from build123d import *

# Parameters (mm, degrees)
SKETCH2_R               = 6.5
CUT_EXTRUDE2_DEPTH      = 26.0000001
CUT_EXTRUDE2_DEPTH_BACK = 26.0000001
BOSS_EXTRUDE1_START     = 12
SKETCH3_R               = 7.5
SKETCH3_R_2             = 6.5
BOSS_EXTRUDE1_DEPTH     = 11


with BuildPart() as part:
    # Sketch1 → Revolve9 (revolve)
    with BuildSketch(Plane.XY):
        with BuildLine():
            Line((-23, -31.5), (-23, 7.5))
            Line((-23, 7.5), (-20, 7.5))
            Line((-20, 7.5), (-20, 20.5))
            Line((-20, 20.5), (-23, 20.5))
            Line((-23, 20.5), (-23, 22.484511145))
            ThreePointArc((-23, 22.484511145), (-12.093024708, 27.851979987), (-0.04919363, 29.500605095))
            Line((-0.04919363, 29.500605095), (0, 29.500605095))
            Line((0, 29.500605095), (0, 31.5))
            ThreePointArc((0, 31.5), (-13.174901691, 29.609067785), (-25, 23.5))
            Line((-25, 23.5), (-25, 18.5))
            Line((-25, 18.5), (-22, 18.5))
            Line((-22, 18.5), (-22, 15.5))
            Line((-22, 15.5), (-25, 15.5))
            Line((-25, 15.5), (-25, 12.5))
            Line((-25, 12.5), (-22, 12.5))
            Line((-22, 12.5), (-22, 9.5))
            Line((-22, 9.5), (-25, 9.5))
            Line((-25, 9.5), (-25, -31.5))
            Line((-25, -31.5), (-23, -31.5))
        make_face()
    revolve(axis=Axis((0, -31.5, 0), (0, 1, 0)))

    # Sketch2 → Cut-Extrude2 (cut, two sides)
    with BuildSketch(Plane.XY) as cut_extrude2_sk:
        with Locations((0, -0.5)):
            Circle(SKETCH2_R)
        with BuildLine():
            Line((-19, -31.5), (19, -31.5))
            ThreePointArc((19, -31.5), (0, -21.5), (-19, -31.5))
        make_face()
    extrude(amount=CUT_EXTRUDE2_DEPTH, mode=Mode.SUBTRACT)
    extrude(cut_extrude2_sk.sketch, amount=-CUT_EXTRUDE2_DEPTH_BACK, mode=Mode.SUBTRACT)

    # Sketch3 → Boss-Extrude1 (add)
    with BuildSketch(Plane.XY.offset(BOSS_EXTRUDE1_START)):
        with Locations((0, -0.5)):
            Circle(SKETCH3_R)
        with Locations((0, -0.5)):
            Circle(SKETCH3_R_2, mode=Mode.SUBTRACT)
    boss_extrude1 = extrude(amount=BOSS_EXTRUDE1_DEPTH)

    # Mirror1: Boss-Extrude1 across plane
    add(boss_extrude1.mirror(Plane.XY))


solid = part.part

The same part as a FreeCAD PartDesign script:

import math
import FreeCAD as App
import Part
import Sketcher

V = App.Vector

doc = App.newDocument("Part")
body = doc.addObject("PartDesign::Body", "Body")

# Sketch on XY plane
sketch1 = body.newObject("Sketcher::SketchObject", "Sketch")
sketch1.AttachmentSupport = (doc.getObject("XY_Plane"), [""])
sketch1.MapMode = "FlatFace"
sketch1.addGeometry(Part.LineSegment(V(-23, -31.5, 0), V(-23, 7.5, 0)), False)
sketch1.addGeometry(Part.LineSegment(V(-23, 7.5, 0), V(-20, 7.5, 0)), False)
sketch1.addGeometry(Part.LineSegment(V(-20, 7.5, 0), V(-20, 20.5, 0)), False)
sketch1.addGeometry(Part.LineSegment(V(-20, 20.5, 0), V(-23, 20.5, 0)), False)
sketch1.addGeometry(Part.LineSegment(V(-23, 20.5, 0), V(-23, 22.485, 0)), False)
sketch1.addGeometry(Part.ArcOfCircle(Part.Circle(V(-0.984, -8.488, 0), V(0, 0, 1), 38), math.radians(89), math.radians(125)), False)
sketch1.addGeometry(Part.LineSegment(V(-0.049, 29.501, 0), V(0, 29.501, 0)), False)
sketch1.addGeometry(Part.LineSegment(V(0, 29.501, 0), V(0, 31.5, 0)), False)
sketch1.addGeometry(Part.ArcOfCircle(Part.Circle(V(-0.984, -8.488, 0), V(0, 0, 1), 40), math.radians(89), math.radians(127)), False)
sketch1.addGeometry(Part.LineSegment(V(-25, 23.5, 0), V(-25, 18.5, 0)), False)
sketch1.addGeometry(Part.LineSegment(V(-25, 18.5, 0), V(-22, 18.5, 0)), False)
sketch1.addGeometry(Part.LineSegment(V(-22, 18.5, 0), V(-22, 15.5, 0)), False)
sketch1.addGeometry(Part.LineSegment(V(-22, 15.5, 0), V(-25, 15.5, 0)), False)
sketch1.addGeometry(Part.LineSegment(V(-25, 15.5, 0), V(-25, 12.5, 0)), False)
sketch1.addGeometry(Part.LineSegment(V(-25, 12.5, 0), V(-22, 12.5, 0)), False)
sketch1.addGeometry(Part.LineSegment(V(-22, 12.5, 0), V(-22, 9.5, 0)), False)
sketch1.addGeometry(Part.LineSegment(V(-22, 9.5, 0), V(-25, 9.5, 0)), False)
sketch1.addGeometry(Part.LineSegment(V(-25, 9.5, 0), V(-25, -31.5, 0)), False)
sketch1.addGeometry(Part.LineSegment(V(-25, -31.5, 0), V(-23, -31.5, 0)), False)
sketch1.addConstraint(Sketcher.Constraint("Coincident", 0, 2, 1, 1))
sketch1.addConstraint(Sketcher.Constraint("Coincident", 1, 2, 2, 1))
sketch1.addConstraint(Sketcher.Constraint("Coincident", 2, 2, 3, 1))
sketch1.addConstraint(Sketcher.Constraint("Coincident", 3, 2, 4, 1))
sketch1.addConstraint(Sketcher.Constraint("Coincident", 4, 2, 5, 2))
sketch1.addConstraint(Sketcher.Constraint("Coincident", 5, 1, 6, 1))
sketch1.addConstraint(Sketcher.Constraint("Coincident", 6, 2, 7, 1))
sketch1.addConstraint(Sketcher.Constraint("Coincident", 7, 2, 8, 1))
sketch1.addConstraint(Sketcher.Constraint("Coincident", 8, 2, 9, 1))
sketch1.addConstraint(Sketcher.Constraint("Coincident", 9, 2, 10, 1))
sketch1.addConstraint(Sketcher.Constraint("Coincident", 10, 2, 11, 1))
sketch1.addConstraint(Sketcher.Constraint("Coincident", 11, 2, 12, 1))
sketch1.addConstraint(Sketcher.Constraint("Coincident", 12, 2, 13, 1))
sketch1.addConstraint(Sketcher.Constraint("Coincident", 13, 2, 14, 1))
sketch1.addConstraint(Sketcher.Constraint("Coincident", 14, 2, 15, 1))
sketch1.addConstraint(Sketcher.Constraint("Coincident", 15, 2, 16, 1))
sketch1.addConstraint(Sketcher.Constraint("Coincident", 16, 2, 17, 1))
sketch1.addConstraint(Sketcher.Constraint("Coincident", 17, 2, 18, 1))
sketch1.addConstraint(Sketcher.Constraint("Coincident", 18, 2, 0, 1))
sketch1.addConstraint(Sketcher.Constraint("Vertical", 0))
sketch1.addConstraint(Sketcher.Constraint("Horizontal", 1))
sketch1.addConstraint(Sketcher.Constraint("Vertical", 2))
sketch1.addConstraint(Sketcher.Constraint("Horizontal", 3))
sketch1.addConstraint(Sketcher.Constraint("Vertical", 4))
sketch1.addConstraint(Sketcher.Constraint("Horizontal", 6))
sketch1.addConstraint(Sketcher.Constraint("Vertical", 7))
sketch1.addConstraint(Sketcher.Constraint("Vertical", 9))
sketch1.addConstraint(Sketcher.Constraint("Horizontal", 10))
sketch1.addConstraint(Sketcher.Constraint("Vertical", 11))
sketch1.addConstraint(Sketcher.Constraint("Horizontal", 12))
sketch1.addConstraint(Sketcher.Constraint("Vertical", 13))
sketch1.addConstraint(Sketcher.Constraint("Horizontal", 14))
sketch1.addConstraint(Sketcher.Constraint("Vertical", 15))
sketch1.addConstraint(Sketcher.Constraint("Horizontal", 16))
sketch1.addConstraint(Sketcher.Constraint("Vertical", 17))
sketch1.addConstraint(Sketcher.Constraint("Horizontal", 18))
sketch1.addConstraint(Sketcher.Constraint("Coincident", 8, 3, 5, 3))
sketch1.addConstraint(Sketcher.Constraint("PointOnObject", 6, 2, -2))
sketch1.addConstraint(Sketcher.Constraint("Vertical", 0, 2, 3, 2))
sketch1.addConstraint(Sketcher.Constraint("Vertical", 9, 2, 12, 2))
sketch1.addConstraint(Sketcher.Constraint("Vertical", 11, 2, 14, 2))
sketch1.addConstraint(Sketcher.Constraint("Vertical", 13, 2, 16, 2))
sketch1.addConstraint(Sketcher.Constraint("Equal", 3, 10))
sketch1.addConstraint(Sketcher.Constraint("Equal", 16, 11))
sketch1.addConstraint(Sketcher.Constraint("Equal", 11, 13))
sketch1.addConstraint(Sketcher.Constraint("Equal", 13, 15))
sketch1.addConstraint(Sketcher.Constraint("Radius", 5, 38.0))
sketch1.addConstraint(Sketcher.Constraint("Radius", 8, 40.0))
sketch1.addConstraint(Sketcher.Constraint("DistanceX", 1, 1, 1, 2, 3.0))
sketch1.addConstraint(Sketcher.Constraint("DistanceX", 18, 1, 18, 2, 2.0))
sketch1.addConstraint(Sketcher.Constraint("DistanceY", 0, 1, 0, 2, 39.0))
sketch1.addConstraint(Sketcher.Constraint("DistanceY", 2, 1, 2, 2, 13.0))
sketch1.addConstraint(Sketcher.Constraint("DistanceY", 9, 2, 9, 1, 5.0))
sketch1.addConstraint(Sketcher.Constraint("DistanceY", 17, 2, 17, 1, 41.0))
sketch1.addConstraint(Sketcher.Constraint("DistanceX", 0, 2, -1, 1, 23.0))
sketch1.addConstraint(Sketcher.Constraint("DistanceY", 2, 2, 7, 2, 11.0))
sketch1.addConstraint(Sketcher.Constraint("DistanceY", -1, 1, 0, 2, 7.5))
sketch1.addConstraint(Sketcher.Constraint("DistanceX", 6, 1, 6, 2, 0.049194))
revolution = body.newObject("PartDesign::Revolution", "Revolution")
revolution.Profile = sketch1
revolution.ReferenceAxis = (sketch1, ["V_Axis"])
revolution.Angle = 360

# Sketch on XY plane
sketch2 = body.newObject("Sketcher::SketchObject", "Sketch001")
sketch2.AttachmentSupport = (doc.getObject("XY_Plane"), [""])
sketch2.MapMode = "FlatFace"
sketch2.addGeometry(Part.Circle(V(0, 0, 0), V(0, 0, 1), 6), False)
sketch2.addGeometry(Part.LineSegment(V(-19, -32, 0), V(19, -32, 0)), False)
sketch2.addGeometry(Part.ArcOfCircle(Part.Circle(V(0, -45, 0), V(0, 0, 1), 23), math.radians(34), math.radians(146)), False)
sketch2.addConstraint(Sketcher.Constraint("Coincident", 1, 1, 2, 2))
sketch2.addConstraint(Sketcher.Constraint("Coincident", 2, 1, 1, 2))
sketch2.addConstraint(Sketcher.Constraint("Horizontal", 1))
sketch2.addConstraint(Sketcher.Constraint("PointOnObject", 0, 3, -2))
sketch2.addConstraint(Sketcher.Constraint("PointOnObject", 2, 3, -2))
sketch2.addConstraint(Sketcher.Constraint("Diameter", 0, 13.0))
sketch2.addConstraint(Sketcher.Constraint("DistanceX", 1, 1, 1, 2, 38.0))
sketch2.addConstraint(Sketcher.Constraint("Radius", 2, 23.05))
sketch2.addConstraint(Sketcher.Constraint("DistanceY", 1, 1, 0, 3, 31.0))
sketch2.addConstraint(Sketcher.Constraint("DistanceY", 0, 3, -1, 1, 0.5))
pocket1 = body.newObject("PartDesign::Pocket", "Pocket")
pocket1.Profile = sketch2
pocket1.Type = "ThroughAll"
pocket1.Midplane = True

# Sketch on XY plane
sketch3 = body.newObject("Sketcher::SketchObject", "Sketch002")
sketch3.AttachmentSupport = (doc.getObject("XY_Plane"), [""])
sketch3.MapMode = "FlatFace"
sketch3.AttachmentOffset = App.Placement(V(0, 0, 12), App.Rotation())
sketch3.addGeometry(Part.Circle(V(0, 0, 0), V(0, 0, 1), 8), False)
sketch3.addGeometry(Part.Circle(V(0, 0, 0), V(0, 0, 1), 6), False)
sketch3.addConstraint(Sketcher.Constraint("Coincident", 1, 3, 0, 3))
sketch3.addConstraint(Sketcher.Constraint("PointOnObject", 0, 3, -2))
sketch3.addConstraint(Sketcher.Constraint("Diameter", 0, 15.0))
sketch3.addConstraint(Sketcher.Constraint("Diameter", 1, 13.0))
sketch3.addConstraint(Sketcher.Constraint("DistanceY", 0, 3, -1, 1, 0.5))
pad1 = body.newObject("PartDesign::Pad", "Pad")
pad1.Profile = sketch3
pad1.Length = 11
doc.recompute()

mirrored = body.newObject("PartDesign::Mirrored", "Mirrored")
mirrored.Originals = [pad1]
mirrored.MirrorPlane = (doc.getObject("XY_Plane"), [""])
body.Tip = mirrored

doc.recompute()
